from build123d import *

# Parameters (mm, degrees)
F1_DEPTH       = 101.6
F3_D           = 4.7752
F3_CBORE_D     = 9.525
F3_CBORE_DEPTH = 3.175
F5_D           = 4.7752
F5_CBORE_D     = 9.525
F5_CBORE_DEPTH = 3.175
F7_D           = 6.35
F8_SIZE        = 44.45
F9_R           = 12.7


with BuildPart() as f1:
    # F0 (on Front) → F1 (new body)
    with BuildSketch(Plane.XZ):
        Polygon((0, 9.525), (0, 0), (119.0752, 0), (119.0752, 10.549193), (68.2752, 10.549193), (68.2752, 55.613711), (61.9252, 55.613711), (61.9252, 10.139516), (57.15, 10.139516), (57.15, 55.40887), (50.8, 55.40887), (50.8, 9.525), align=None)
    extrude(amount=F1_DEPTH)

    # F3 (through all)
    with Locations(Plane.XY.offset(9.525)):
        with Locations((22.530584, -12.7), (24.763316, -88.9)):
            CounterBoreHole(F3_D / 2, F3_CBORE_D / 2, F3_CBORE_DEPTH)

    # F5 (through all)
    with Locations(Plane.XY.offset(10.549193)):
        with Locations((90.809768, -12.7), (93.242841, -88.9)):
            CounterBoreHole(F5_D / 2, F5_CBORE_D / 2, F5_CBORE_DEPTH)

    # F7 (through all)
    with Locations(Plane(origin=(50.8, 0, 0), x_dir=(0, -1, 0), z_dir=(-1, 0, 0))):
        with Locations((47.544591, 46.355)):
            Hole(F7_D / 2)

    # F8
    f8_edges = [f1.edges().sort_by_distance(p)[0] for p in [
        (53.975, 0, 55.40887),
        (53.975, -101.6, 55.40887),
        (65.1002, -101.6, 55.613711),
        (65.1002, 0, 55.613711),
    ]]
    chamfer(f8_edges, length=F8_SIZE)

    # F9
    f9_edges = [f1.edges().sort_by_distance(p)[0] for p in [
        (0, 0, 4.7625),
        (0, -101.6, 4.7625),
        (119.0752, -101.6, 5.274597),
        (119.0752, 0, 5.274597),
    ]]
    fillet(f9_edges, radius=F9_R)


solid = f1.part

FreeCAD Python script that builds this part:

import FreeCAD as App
import Part
import Sketcher
Q = App.Units.Quantity


def edges_at(feature, points):
    """Names of the edges that pass closest to the given points."""
    edges = feature.Shape.Edges
    near = lambda p: min(range(len(edges)), key=lambda i: edges[i].distToShape(Part.Vertex(*p))[0])
    return sorted({f"Edge{near(p) + 1}" for p in points})


def add_polygon(sketch, points):
    """Adds a closed chain of lines whose ends are joined by coincident constraints."""
    first, n = sketch.GeometryCount, len(points)
    for a, b in zip(points, points[1:] + points[:1]):
        sketch.addGeometry(Part.LineSegment(App.Vector(*a, 0), App.Vector(*b, 0)), False)
    for i in range(n):
        sketch.addConstraint(Sketcher.Constraint("Coincident", first + i, 2, first + (i + 1) % n, 1))

doc = App.newDocument("Part")
body = doc.addObject("PartDesign::Body", "Body")

# Sketch on XZ plane
sketch1 = body.newObject("Sketcher::SketchObject", "Sketch")
sketch1.AttachmentSupport = (doc.getObject("XZ_Plane"), [""])
sketch1.MapMode = "FlatFace"
add_polygon(sketch1, [(0, 9.5), (0, 0), (119.1, 0), (119.1, 10.5), (68.3, 10.5), (68.3, 55.6), (61.9, 55.6), (61.9, 10.1), (57.1, 10.1), (57.1, 55.4), (50.8, 55.4), (50.8, 9.5)])  # lines 0-11
sketch1.addConstraint([
    Sketcher.Constraint("Vertical", 0),
    Sketcher.Constraint("Horizontal", 1),
    Sketcher.Constraint("Vertical", 2),
    Sketcher.Constraint("Horizontal", 3),
    Sketcher.Constraint("Vertical", 4),
    Sketcher.Constraint("Horizontal", 5),
    Sketcher.Constraint("Vertical", 6),
    Sketcher.Constraint("Horizontal", 7),
    Sketcher.Constraint("Vertical", 8),
    Sketcher.Constraint("Horizontal", 9),
    Sketcher.Constraint("Vertical", 10),
    Sketcher.Constraint("Horizontal", 11),
    Sketcher.Constraint("Coincident", 0, 2, -1, 1),
    Sketcher.Constraint("Equal", 5, 9),
    Sketcher.Constraint("Equal", 3, 11),
    Sketcher.Constraint("DistanceX", 3, 2, 3, 1, Q("2 in")),
    Sketcher.Constraint("DistanceX", 5, 2, 5, 1, Q("0.25 in")),
    Sketcher.Constraint("DistanceX", 1, 1, 1, 2, Q("4.688 in")),
    Sketcher.Constraint("DistanceY", 0, 2, 0, 1, Q("0.375 in")),
    Sketcher.Constraint("DistanceY", 10, 2, 10, 1, 45.88387),
    Sketcher.Constraint("DistanceY", 2, 1, 2, 2, 10.549193),
    Sketcher.Constraint("DistanceY", 4, 1, 4, 2, 45.064518),
    Sketcher.Constraint("DistanceY", 6, 2, 6, 1, 45.474195),
])
pad1 = body.newObject("PartDesign::Pad", "Pad")
pad1.Profile = sketch1
pad1.Length = Q("4 in")

# Sketch on XY plane
sketch2 = body.newObject("Sketcher::SketchObject", "Sketch001")
sketch2.AttachmentSupport = (doc.getObject("XY_Plane"), [""])
sketch2.MapMode = "FlatFace"
sketch2.AttachmentOffset = App.Placement(App.Vector(0, 0, 0.375 * 25.4), App.Rotation())
sketch2.addGeometry([
    Part.Circle(App.Vector(22.5, -12.7, 0), App.Vector(0, 0, 1), 2.4),
    Part.Circle(App.Vector(24.8, -88.9, 0), App.Vector(0, 0, 1), 2.4),
], False)
sketch2.addConstraint([
    Sketcher.Constraint("Equal", 0, 1),
    Sketcher.Constraint("Diameter", 0, Q("0.188 in")),
    Sketcher.Constraint("DistanceY", 1, 3, 0, 3, Q("3 in")),
    Sketcher.Constraint("DistanceY", 0, 3, -1, 1, Q("0.5 in")),
    Sketcher.Constraint("DistanceX", 0, 3, 1, 3, 2.232732),
    Sketcher.Constraint("DistanceX", -1, 1, 0, 3, 22.530584),
])
doc.recompute()
hole = body.newObject("PartDesign::Hole", "Hole")
hole.Profile = sketch2
hole.ThreadType = "None"
hole.Diameter = Q("0.188 in")
hole.DepthType = "ThroughAll"
hole.HoleCutType = "Counterbore"
hole.HoleCutDiameter = Q("0.375 in")
hole.HoleCutDepth = Q("0.125 in")

# Sketch on XY plane
sketch3 = body.newObject("Sketcher::SketchObject", "Sketch002")
sketch3.AttachmentSupport = (doc.getObject("XY_Plane"), [""])
sketch3.MapMode = "FlatFace"
sketch3.AttachmentOffset = App.Placement(App.Vector(0, 0, 10.549193), App.Rotation())
sketch3.addGeometry([
    Part.Circle(App.Vector(90.8, -12.7, 0), App.Vector(0, 0, 1), 2.4),
    Part.Circle(App.Vector(93.2, -88.9, 0), App.Vector(0, 0, 1), 2.4),
], False)
sketch3.addConstraint([
    Sketcher.Constraint("Equal", 0, 1),
    Sketcher.Constraint("Diameter", 0, Q("0.188 in")),
    Sketcher.Constraint("DistanceY", 1, 3, 0, 3, Q("3 in")),
    Sketcher.Constraint("DistanceY", 0, 3, -1, 1, Q("0.5 in")),
    Sketcher.Constraint("DistanceX", -1, 1, 0, 3, 90.809768),
    Sketcher.Constraint("DistanceX", -1, 1, 1, 3, 93.242841),
])
doc.recompute()
hole2 = body.newObject("PartDesign::Hole", "Hole001")
hole2.Profile = sketch3
hole2.ThreadType = "None"
hole2.Diameter = Q("0.188 in")
hole2.DepthType = "ThroughAll"
hole2.HoleCutType = "Counterbore"
hole2.HoleCutDiameter = Q("0.375 in")
hole2.HoleCutDepth = Q("0.125 in")

# Sketch on YZ plane
sketch4 = body.newObject("Sketcher::SketchObject", "Sketch003")
sketch4.AttachmentSupport = (doc.getObject("YZ_Plane"), [""])
sketch4.MapMode = "FlatFace"
sketch4.AttachmentOffset = App.Placement(App.Vector(0, 0, 2 * 25.4), App.Rotation())
sketch4.addGeometry(Part.Circle(App.Vector(-47.5, 46.4, 0), App.Vector(0, 0, 1), 3.2), False)
sketch4.addConstraint([
    Sketcher.Constraint("Diameter", 0, Q("0.25 in")),
    Sketcher.Constraint("DistanceY", -1, 1, 0, 3, Q("1.825 in")),
    Sketcher.Constraint("DistanceX", 0, 3, -1, 1, 47.544591),
])
doc.recompute()
hole3 = body.newObject("PartDesign::Hole", "Hole002")
hole3.Profile = sketch4
hole3.ThreadType = "None"
hole3.Diameter = Q("0.25 in")
hole3.DepthType = "ThroughAll"
hole3.Reversed = True
doc.recompute()

chamfer = body.newObject("PartDesign::Chamfer", "Chamfer")
chamfer.Base = (hole3, edges_at(hole3, [
    (53.975, 0, 55.409),
    (53.975, -101.6, 55.409),
    (65.1, -101.6, 55.614),
    (65.1, 0, 55.614),
]))
chamfer.Size = Q("1.75 in")
doc.recompute()

fillet = body.newObject("PartDesign::Fillet", "Fillet")
fillet.Base = (chamfer, edges_at(chamfer, [
    (0, 0, 4.763),
    (0, -101.6, 4.763),
    (119.075, -101.6, 5.275),
    (119.075, 0, 5.275),
]))
fillet.Radius = Q("0.5 in")

doc.recompute()
